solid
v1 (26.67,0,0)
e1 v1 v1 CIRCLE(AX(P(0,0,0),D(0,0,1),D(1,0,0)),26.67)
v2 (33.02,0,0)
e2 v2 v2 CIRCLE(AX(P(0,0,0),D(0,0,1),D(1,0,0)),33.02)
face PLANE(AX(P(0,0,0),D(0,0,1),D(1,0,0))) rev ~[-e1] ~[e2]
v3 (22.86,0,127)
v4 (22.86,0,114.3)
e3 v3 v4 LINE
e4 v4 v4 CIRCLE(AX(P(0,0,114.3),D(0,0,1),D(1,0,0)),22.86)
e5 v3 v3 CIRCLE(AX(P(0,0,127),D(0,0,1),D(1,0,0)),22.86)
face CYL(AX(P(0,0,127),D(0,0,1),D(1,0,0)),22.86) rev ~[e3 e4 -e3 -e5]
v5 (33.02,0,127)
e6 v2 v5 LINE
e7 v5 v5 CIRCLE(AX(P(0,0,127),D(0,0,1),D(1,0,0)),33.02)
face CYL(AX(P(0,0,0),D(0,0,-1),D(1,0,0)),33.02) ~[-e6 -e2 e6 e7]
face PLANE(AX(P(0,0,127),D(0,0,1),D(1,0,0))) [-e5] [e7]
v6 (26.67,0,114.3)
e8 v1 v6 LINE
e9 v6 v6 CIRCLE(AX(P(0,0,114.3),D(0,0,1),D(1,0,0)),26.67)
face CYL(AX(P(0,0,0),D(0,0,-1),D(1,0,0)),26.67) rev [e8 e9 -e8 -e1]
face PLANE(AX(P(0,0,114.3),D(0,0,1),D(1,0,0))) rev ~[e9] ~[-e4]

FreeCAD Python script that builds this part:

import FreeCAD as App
import Part
import Sketcher
from FreeCAD import Vector
Q = App.Units.Quantity

doc = App.newDocument("Part")
params = doc.addObject("Spreadsheet::Sheet", "Params")
for row, (alias, value) in enumerate([
    ("sketch1_diameter", "2.6 in"),
    ("sketch1_diameter2", "2.1 in"),
    ("pad1_length", "5 in"),
    ("sketch2_diameter", "1.8 in"),
    ("sketch2_diameter2", "2.1 in"),
    ("pad2_length", "0.5 in"),
], start=1):
    params.set(f"A{row}", alias)
    params.set(f"B{row}", "=" + value)
    params.setAlias(f"B{row}", alias)

body = doc.addObject("PartDesign::Body", "Body")

# Sketch on XY plane
sketch1 = doc.addObject("Sketcher::SketchObject", "Sketch")
body.addObject(sketch1)
sketch1.AttachmentSupport = (doc.XY_Plane, [""])
sketch1.MapMode = "FlatFace"
sketch1.addGeometry(Part.Circle(Vector(0, 0, 0), Vector(0, 0, 1), 33.02), False)
sketch1.addGeometry(Part.Circle(Vector(0, 0, 0), Vector(0, 0, 1), 26.67), False)
sketch1.addConstraint(Sketcher.Constraint("Coincident", 0, 3, -1, 1))
sketch1.addConstraint(Sketcher.Constraint("Coincident", 1, 3, -1, 1))
sketch1.addConstraint(Sketcher.Constraint("Diameter", 0, Q("2.6 in")))
sketch1.addConstraint(Sketcher.Constraint("Diameter", 1, Q("2.1 in")))
sketch1.setExpression("Constraints[2]", "Params.sketch1_diameter")
sketch1.setExpression("Constraints[3]", "Params.sketch1_diameter2")
pad1 = doc.addObject("PartDesign::Pad", "Pad")
body.addObject(pad1)
pad1.Profile = sketch1
pad1.setExpression("Length", "Params.pad1_length")

# Sketch on XY plane
sketch2 = doc.addObject("Sketcher::SketchObject", "Sketch001")
body.addObject(sketch2)
sketch2.AttachmentSupport = (doc.XY_Plane, [""])
sketch2.MapMode = "FlatFace"
sketch2.AttachmentOffset = App.Placement(Vector(0, 0, 5 * 25.4), App.Rotation())
sketch2.addGeometry(Part.Circle(Vector(0, 0, 0), Vector(0, 0, 1), 26.67), False)
sketch2.addGeometry(Part.Circle(Vector(0, 0, 0), Vector(0, 0, 1), 22.86), False)
sketch2.addConstraint(Sketcher.Constraint("Coincident", 0, 3, -1, 1))
sketch2.addConstraint(Sketcher.Constraint("Coincident", 1, 3, -1, 1))
sketch2.addConstraint(Sketcher.Constraint("Diameter", 1, Q("1.8 in")))
sketch2.addConstraint(Sketcher.Constraint("Diameter", 0, Q("2.1 in")))
sketch2.setExpression("Constraints[2]", "Params.sketch2_diameter")
sketch2.setExpression("Constraints[3]", "Params.sketch2_diameter2")
pad2 = doc.addObject("PartDesign::Pad", "Pad001")
body.addObject(pad2)
pad2.Profile = sketch2
pad2.setExpression("Length", "Params.pad2_length")
pad2.Reversed = True

doc.recompute()
